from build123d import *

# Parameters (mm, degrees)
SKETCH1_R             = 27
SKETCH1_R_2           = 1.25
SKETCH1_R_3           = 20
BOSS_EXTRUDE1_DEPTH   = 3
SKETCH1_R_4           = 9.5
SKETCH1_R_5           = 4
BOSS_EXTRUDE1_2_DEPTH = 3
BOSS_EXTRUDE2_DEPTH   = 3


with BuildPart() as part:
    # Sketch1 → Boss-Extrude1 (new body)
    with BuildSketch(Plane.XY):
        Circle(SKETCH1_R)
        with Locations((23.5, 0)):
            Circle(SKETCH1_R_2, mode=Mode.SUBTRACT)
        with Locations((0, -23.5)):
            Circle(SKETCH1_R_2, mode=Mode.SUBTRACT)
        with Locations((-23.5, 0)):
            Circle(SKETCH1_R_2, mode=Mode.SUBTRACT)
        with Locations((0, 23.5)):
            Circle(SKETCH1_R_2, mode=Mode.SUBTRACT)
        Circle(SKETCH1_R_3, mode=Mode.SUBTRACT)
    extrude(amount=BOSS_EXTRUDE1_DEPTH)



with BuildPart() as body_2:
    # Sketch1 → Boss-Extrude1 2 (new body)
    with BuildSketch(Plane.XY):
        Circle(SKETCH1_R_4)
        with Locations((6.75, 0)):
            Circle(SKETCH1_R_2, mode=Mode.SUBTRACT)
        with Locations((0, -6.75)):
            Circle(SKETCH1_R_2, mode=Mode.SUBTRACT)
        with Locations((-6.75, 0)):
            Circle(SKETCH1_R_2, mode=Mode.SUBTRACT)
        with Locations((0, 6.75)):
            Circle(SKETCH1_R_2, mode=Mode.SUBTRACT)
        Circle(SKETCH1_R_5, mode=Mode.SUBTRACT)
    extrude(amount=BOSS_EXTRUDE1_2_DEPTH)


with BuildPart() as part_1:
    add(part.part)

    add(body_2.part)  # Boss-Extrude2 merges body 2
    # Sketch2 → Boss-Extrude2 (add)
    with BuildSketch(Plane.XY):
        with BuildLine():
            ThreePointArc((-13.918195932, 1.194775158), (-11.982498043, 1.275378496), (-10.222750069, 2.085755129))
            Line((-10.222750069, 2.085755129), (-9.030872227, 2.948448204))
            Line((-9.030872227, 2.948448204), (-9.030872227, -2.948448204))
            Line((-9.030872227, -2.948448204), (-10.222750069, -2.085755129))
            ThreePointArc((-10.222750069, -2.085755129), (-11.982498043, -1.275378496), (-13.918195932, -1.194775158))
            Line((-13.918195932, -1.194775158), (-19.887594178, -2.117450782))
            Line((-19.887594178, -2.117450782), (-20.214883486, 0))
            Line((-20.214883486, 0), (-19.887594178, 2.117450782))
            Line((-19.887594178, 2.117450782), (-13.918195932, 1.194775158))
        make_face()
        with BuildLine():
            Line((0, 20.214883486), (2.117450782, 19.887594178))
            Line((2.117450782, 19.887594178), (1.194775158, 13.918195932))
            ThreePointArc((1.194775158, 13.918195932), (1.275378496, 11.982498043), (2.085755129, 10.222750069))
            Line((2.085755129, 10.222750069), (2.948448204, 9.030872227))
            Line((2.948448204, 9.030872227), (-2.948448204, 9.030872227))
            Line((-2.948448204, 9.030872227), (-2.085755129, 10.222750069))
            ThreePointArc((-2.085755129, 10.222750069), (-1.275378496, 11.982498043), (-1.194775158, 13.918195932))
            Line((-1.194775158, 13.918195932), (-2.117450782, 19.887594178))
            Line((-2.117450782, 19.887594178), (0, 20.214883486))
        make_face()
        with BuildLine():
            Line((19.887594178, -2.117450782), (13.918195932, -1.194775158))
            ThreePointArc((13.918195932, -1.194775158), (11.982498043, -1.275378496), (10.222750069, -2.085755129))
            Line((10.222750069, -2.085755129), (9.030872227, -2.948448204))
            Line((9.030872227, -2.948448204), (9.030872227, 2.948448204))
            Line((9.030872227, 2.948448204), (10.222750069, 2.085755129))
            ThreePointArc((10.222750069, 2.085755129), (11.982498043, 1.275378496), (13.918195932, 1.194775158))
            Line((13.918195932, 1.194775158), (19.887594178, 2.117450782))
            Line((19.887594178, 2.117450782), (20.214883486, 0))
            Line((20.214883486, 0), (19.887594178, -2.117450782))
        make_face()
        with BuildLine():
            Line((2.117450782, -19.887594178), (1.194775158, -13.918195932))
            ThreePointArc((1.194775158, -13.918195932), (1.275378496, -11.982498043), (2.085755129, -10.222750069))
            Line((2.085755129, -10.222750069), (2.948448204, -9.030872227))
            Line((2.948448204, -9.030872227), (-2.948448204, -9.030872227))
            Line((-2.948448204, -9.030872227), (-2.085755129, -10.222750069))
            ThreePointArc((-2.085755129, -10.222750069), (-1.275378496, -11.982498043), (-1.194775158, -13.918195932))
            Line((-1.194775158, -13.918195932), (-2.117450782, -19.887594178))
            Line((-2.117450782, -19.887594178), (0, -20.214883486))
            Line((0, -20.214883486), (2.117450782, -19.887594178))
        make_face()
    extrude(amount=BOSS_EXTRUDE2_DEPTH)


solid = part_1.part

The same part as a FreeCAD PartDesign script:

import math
import FreeCAD as App
import Part
import Sketcher

V = App.Vector
Q = App.Units.Quantity

doc = App.newDocument("Part")
params = doc.addObject("Spreadsheet::Sheet", "Params")
for row, (alias, value) in enumerate([
    ("sketch1_diameter", "54 mm"),
    ("sketch1_diameter2", "40 mm"),
    ("sketch1_diameter3", "2.5 mm"),
    ("pad1_length", "3 mm"),
    ("sketch2_diameter", "19 mm"),
    ("sketch2_diameter2", "8 mm"),
    ("sketch2_diameter3", "2.5 mm"),
    ("pad2_length", "3 mm"),
    ("sketch3_radius", "5 mm"),
    ("pad3_length", "3 mm"),
], start=1):
    params.set(f"A{row}", alias)
    params.set(f"B{row}", "=" + value)
    params.setAlias(f"B{row}", alias)

body = doc.addObject("PartDesign::Body", "Body")

sketch1 = body.newObject("Sketcher::SketchObject", "Sketch")
sketch1.AttachmentSupport = (doc.getObject("XY_Plane"), [""])
sketch1.MapMode = "FlatFace"
sketch1.addGeometry(Part.Circle(V(0, 0, 0), V(0, 0, 1), 27), False)
sketch1.addGeometry(Part.Circle(V(0, -23.5, 0), V(0, 0, 1), 1.2), False)
sketch1.addGeometry(Part.Circle(V(-23.5, 0, 0), V(0, 0, 1), 1.2), False)
sketch1.addGeometry(Part.Circle(V(0, 0, 0), V(0, 0, 1), 20), False)
sketch1.addGeometry(Part.Circle(V(23.5, 0, 0), V(0, 0, 1), 1.2), False)
sketch1.addGeometry(Part.Circle(V(0, 23.5, 0), V(0, 0, 1), 1.2), False)
sketch1.addConstraint(Sketcher.Constraint("Coincident", 0, 3, -1, 1))
sketch1.addConstraint(Sketcher.Constraint("Coincident", 3, 3, -1, 1))
sketch1.addConstraint(Sketcher.Constraint("Equal", 1, 2))
sketch1.addConstraint(Sketcher.Constraint("Equal", 2, 4))
sketch1.addConstraint(Sketcher.Constraint("Equal", 4, 5))
sketch1.addConstraint(Sketcher.Constraint("Symmetric", 2, 3, 4, 3, -1, 1))
sketch1.addConstraint(Sketcher.Constraint("Symmetric", 1, 3, 5, 3, -1, 1))
sketch1.addConstraint(Sketcher.Constraint("PointOnObject", 1, 3, -2))
sketch1.addConstraint(Sketcher.Constraint("PointOnObject", 2, 3, -1))
sketch1.addConstraint(Sketcher.Constraint("Diameter", 0, Q("54 mm")))
sketch1.addConstraint(Sketcher.Constraint("Diameter", 3, Q("40 mm")))
sketch1.addConstraint(Sketcher.Constraint("Diameter", 1, Q("2.5 mm")))
sketch1.addConstraint(Sketcher.Constraint("DistanceX", 2, 3, 4, 3, Q("47 mm")))
sketch1.addConstraint(Sketcher.Constraint("DistanceY", 1, 3, 5, 3, Q("47 mm")))
sketch1.setExpression("Constraints[9]", "Params.sketch1_diameter")
sketch1.setExpression("Constraints[10]", "Params.sketch1_diameter2")
sketch1.setExpression("Constraints[11]", "Params.sketch1_diameter3")
pad1 = body.newObject("PartDesign::Pad", "Pad")
pad1.Profile = sketch1
pad1.setExpression("Length", "Params.pad1_length")
body2 = doc.addObject("PartDesign::Body", "Body001")

sketch2 = body2.newObject("Sketcher::SketchObject", "Sketch001")
sketch2.AttachmentSupport = (doc.getObject("XY_Plane001"), [""])
sketch2.MapMode = "FlatFace"
sketch2.addGeometry(Part.Circle(V(0, 0, 0), V(0, 0, 1), 9.5), False)
sketch2.addGeometry(Part.Circle(V(0, -6.8, 0), V(0, 0, 1), 1.2), False)
sketch2.addGeometry(Part.Circle(V(-6.8, 0, 0), V(0, 0, 1), 1.2), False)
sketch2.addGeometry(Part.Circle(V(0, 0, 0), V(0, 0, 1), 4), False)
sketch2.addGeometry(Part.Circle(V(6.8, 0, 0), V(0, 0, 1), 1.2), False)
sketch2.addGeometry(Part.Circle(V(0, 6.8, 0), V(0, 0, 1), 1.2), False)
sketch2.addConstraint(Sketcher.Constraint("Coincident", 0, 3, -1, 1))
sketch2.addConstraint(Sketcher.Constraint("Coincident", 3, 3, -1, 1))
sketch2.addConstraint(Sketcher.Constraint("Equal", 1, 2))
sketch2.addConstraint(Sketcher.Constraint("Equal", 2, 4))
sketch2.addConstraint(Sketcher.Constraint("Equal", 4, 5))
sketch2.addConstraint(Sketcher.Constraint("Symmetric", 2, 3, 4, 3, -1, 1))
sketch2.addConstraint(Sketcher.Constraint("Symmetric", 1, 3, 5, 3, -1, 1))
sketch2.addConstraint(Sketcher.Constraint("PointOnObject", 1, 3, -2))
sketch2.addConstraint(Sketcher.Constraint("PointOnObject", 2, 3, -1))
sketch2.addConstraint(Sketcher.Constraint("Diameter", 0, Q("19 mm")))
sketch2.addConstraint(Sketcher.Constraint("Diameter", 3, Q("8 mm")))
sketch2.addConstraint(Sketcher.Constraint("Diameter", 1, Q("2.5 mm")))
sketch2.addConstraint(Sketcher.Constraint("DistanceX", 2, 3, 4, 3, Q("13.5 mm")))
sketch2.addConstraint(Sketcher.Constraint("DistanceY", 1, 3, 5, 3, Q("13.5 mm")))
sketch2.setExpression("Constraints[9]", "Params.sketch2_diameter")
sketch2.setExpression("Constraints[10]", "Params.sketch2_diameter2")
sketch2.setExpression("Constraints[11]", "Params.sketch2_diameter3")
pad2 = body2.newObject("PartDesign::Pad", "Pad001")
pad2.Profile = sketch2
pad2.setExpression("Length", "Params.pad2_length")
body.AllowCompound = True
doc.recompute()

boolean = body.newObject("PartDesign::Boolean", "Boolean")
boolean.Type = "Fuse"
boolean.addObjects([body2])

sketch3 = body.newObject("Sketcher::SketchObject", "Sketch002")
sketch3.AttachmentSupport = (doc.getObject("XY_Plane"), [""])
sketch3.MapMode = "FlatFace"
sketch3.addGeometry(Part.ArcOfCircle(Part.Circle(V(-13.2, 6.1, 0), V(0, 0, 1), 5), math.radians(-99), math.radians(-54)), False)
sketch3.addGeometry(Part.LineSegment(V(-13.9, 1.2, 0), V(-19.9, 2.1, 0)), False)
sketch3.addGeometry(Part.LineSegment(V(-19.9, 2.1, 0), V(-20.2, 0, 0)), False)
sketch3.addGeometry(Part.LineSegment(V(-20.2, 0, 0), V(-19.9, -2.1, 0)), False)
sketch3.addGeometry(Part.LineSegment(V(-19.9, -2.1, 0), V(-13.9, -1.2, 0)), False)
sketch3.addGeometry(Part.ArcOfCircle(Part.Circle(V(-13.2, -6.1, 0), V(0, 0, 1), 5), math.radians(54), math.radians(99)), False)
sketch3.addGeometry(Part.LineSegment(V(-10.2, -2.1, 0), V(-9, -2.9, 0)), False)
sketch3.addGeometry(Part.LineSegment(V(-9, -2.9, 0), V(-9, 2.9, 0)), False)
sketch3.addGeometry(Part.LineSegment(V(-9, 2.9, 0), V(-10.2, 2.1, 0)), False)
sketch3.addGeometry(Part.LineSegment(V(2.1, 19.9, 0), V(0, 20.2, 0)), False)
sketch3.addGeometry(Part.LineSegment(V(0, 20.2, 0), V(-2.1, 19.9, 0)), False)
sketch3.addGeometry(Part.LineSegment(V(-2.1, 19.9, 0), V(-1.2, 13.9, 0)), False)
sketch3.addGeometry(Part.ArcOfCircle(Part.Circle(V(-6.1, 13.2, 0), V(0, 0, 1), 5), math.radians(-36), math.radians(9)), False)
sketch3.addGeometry(Part.LineSegment(V(-2.1, 10.2, 0), V(-2.9, 9, 0)), False)
sketch3.addGeometry(Part.LineSegment(V(-2.9, 9, 0), V(2.9, 9, 0)), False)
sketch3.addGeometry(Part.LineSegment(V(2.9, 9, 0), V(2.1, 10.2, 0)), False)
sketch3.addGeometry(Part.ArcOfCircle(Part.Circle(V(6.1, 13.2, 0), V(0, 0, 1), 5), math.radians(171), math.radians(216)), False)
sketch3.addGeometry(Part.LineSegment(V(1.2, 13.9, 0), V(2.1, 19.9, 0)), False)
sketch3.addGeometry(Part.LineSegment(V(13.9, -1.2, 0), V(19.9, -2.1, 0)), False)
sketch3.addGeometry(Part.LineSegment(V(19.9, -2.1, 0), V(20.2, 0, 0)), False)
sketch3.addGeometry(Part.LineSegment(V(20.2, 0, 0), V(19.9, 2.1, 0)), False)
sketch3.addGeometry(Part.LineSegment(V(19.9, 2.1, 0), V(13.9, 1.2, 0)), False)
sketch3.addGeometry(Part.ArcOfCircle(Part.Circle(V(13.2, 6.1, 0), V(0, 0, 1), 5), math.radians(-126), math.radians(-81)), False)
sketch3.addGeometry(Part.LineSegment(V(10.2, 2.1, 0), V(9, 2.9, 0)), False)
sketch3.addGeometry(Part.LineSegment(V(9, 2.9, 0), V(9, -2.9, 0)), False)
sketch3.addGeometry(Part.LineSegment(V(9, -2.9, 0), V(10.2, -2.1, 0)), False)
sketch3.addGeometry(Part.ArcOfCircle(Part.Circle(V(13.2, -6.1, 0), V(0, 0, 1), 5), math.radians(81), math.radians(126)), False)
sketch3.addGeometry(Part.LineSegment(V(2.1, -19.9, 0), V(1.2, -13.9, 0)), False)
sketch3.addGeometry(Part.ArcOfCircle(Part.Circle(V(6.1, -13.2, 0), V(0, 0, 1), 5), math.radians(144), math.radians(189)), False)
sketch3.addGeometry(Part.LineSegment(V(2.1, -10.2, 0), V(2.9, -9, 0)), False)
sketch3.addGeometry(Part.LineSegment(V(2.9, -9, 0), V(-2.9, -9, 0)), False)
sketch3.addGeometry(Part.LineSegment(V(-2.9, -9, 0), V(-2.1, -10.2, 0)), False)
sketch3.addGeometry(Part.ArcOfCircle(Part.Circle(V(-6.1, -13.2, 0), V(0, 0, 1), 5), math.radians(-9), math.radians(36)), False)
sketch3.addGeometry(Part.LineSegment(V(-1.2, -13.9, 0), V(-2.1, -19.9, 0)), False)
sketch3.addGeometry(Part.LineSegment(V(-2.1, -19.9, 0), V(0, -20.2, 0)), False)
sketch3.addGeometry(Part.LineSegment(V(0, -20.2, 0), V(2.1, -19.9, 0)), False)
sketch3.addConstraint(Sketcher.Constraint("Tangent", 0, 1, 1, 1))
sketch3.addConstraint(Sketcher.Constraint("Coincident", 1, 2, 2, 1))
sketch3.addConstraint(Sketcher.Constraint("Coincident", 2, 2, 3, 1))
sketch3.addConstraint(Sketcher.Constraint("Coincident", 3, 2, 4, 1))
sketch3.addConstraint(Sketcher.Constraint("Tangent", 4, 2, 5, 2))
sketch3.addConstraint(Sketcher.Constraint("Tangent", 5, 1, 6, 1))
sketch3.addConstraint(Sketcher.Constraint("Coincident", 6, 2, 7, 1))
sketch3.addConstraint(Sketcher.Constraint("Coincident", 7, 2, 8, 1))
sketch3.addConstraint(Sketcher.Constraint("Tangent", 8, 2, 0, 2))
sketch3.addConstraint(Sketcher.Constraint("Coincident", 9, 2, 10, 1))
sketch3.addConstraint(Sketcher.Constraint("Coincident", 10, 2, 11, 1))
sketch3.addConstraint(Sketcher.Constraint("Tangent", 11, 2, 12, 2))
sketch3.addConstraint(Sketcher.Constraint("Tangent", 12, 1, 13, 1))
sketch3.addConstraint(Sketcher.Constraint("Coincident", 13, 2, 14, 1))
sketch3.addConstraint(Sketcher.Constraint("Coincident", 14, 2, 15, 1))
sketch3.addConstraint(Sketcher.Constraint("Tangent", 15, 2, 16, 2))
sketch3.addConstraint(Sketcher.Constraint("Tangent", 16, 1, 17, 1))
sketch3.addConstraint(Sketcher.Constraint("Coincident", 17, 2, 9, 1))
sketch3.addConstraint(Sketcher.Constraint("Coincident", 18, 2, 19, 1))
sketch3.addConstraint(Sketcher.Constraint("Coincident", 19, 2, 20, 1))
sketch3.addConstraint(Sketcher.Constraint("Coincident", 20, 2, 21, 1))
sketch3.addConstraint(Sketcher.Constraint("Tangent", 21, 2, 22, 2))
sketch3.addConstraint(Sketcher.Constraint("Tangent", 22, 1, 23, 1))
sketch3.addConstraint(Sketcher.Constraint("Coincident", 23, 2, 24, 1))
sketch3.addConstraint(Sketcher.Constraint("Coincident", 24, 2, 25, 1))
sketch3.addConstraint(Sketcher.Constraint("Tangent", 25, 2, 26, 2))
sketch3.addConstraint(Sketcher.Constraint("Tangent", 26, 1, 18, 1))
sketch3.addConstraint(Sketcher.Constraint("Tangent", 27, 2, 28, 2))
sketch3.addConstraint(Sketcher.Constraint("Tangent", 28, 1, 29, 1))
sketch3.addConstraint(Sketcher.Constraint("Coincident", 29, 2, 30, 1))
sketch3.addConstraint(Sketcher.Constraint("Coincident", 30, 2, 31, 1))
sketch3.addConstraint(Sketcher.Constraint("Tangent", 31, 2, 32, 2))
sketch3.addConstraint(Sketcher.Constraint("Tangent", 32, 1, 33, 1))
sketch3.addConstraint(Sketcher.Constraint("Coincident", 33, 2, 34, 1))
sketch3.addConstraint(Sketcher.Constraint("Coincident", 34, 2, 35, 1))
sketch3.addConstraint(Sketcher.Constraint("Coincident", 35, 2, 27, 1))
sketch3.addConstraint(Sketcher.Constraint("Vertical", 7))
sketch3.addConstraint(Sketcher.Constraint("Horizontal", 14))
sketch3.addConstraint(Sketcher.Constraint("Vertical", 24))
sketch3.addConstraint(Sketcher.Constraint("Horizontal", 30))
sketch3.addConstraint(Sketcher.Constraint("Equal", 0, 5))
sketch3.addConstraint(Sketcher.Constraint("Equal", 5, 12))
sketch3.addConstraint(Sketcher.Constraint("Equal", 12, 16))
sketch3.addConstraint(Sketcher.Constraint("Equal", 16, 22))
sketch3.addConstraint(Sketcher.Constraint("Equal", 22, 26))
sketch3.addConstraint(Sketcher.Constraint("Equal", 26, 28))
sketch3.addConstraint(Sketcher.Constraint("Equal", 28, 32))
sketch3.addConstraint(Sketcher.Constraint("Symmetric", 5, 3, 22, 3, -1, 1))
sketch3.addConstraint(Sketcher.Constraint("Symmetric", 0, 3, 26, 3, -1, 1))
sketch3.addConstraint(Sketcher.Constraint("Symmetric", 12, 3, 28, 3, -1, 1))
sketch3.addConstraint(Sketcher.Constraint("Symmetric", 16, 3, 32, 3, -1, 1))
sketch3.addConstraint(Sketcher.Constraint("Symmetric", 1, 2, 18, 2, -1, 1))
sketch3.addConstraint(Sketcher.Constraint("Symmetric", 2, 2, 19, 2, -1, 1))
sketch3.addConstraint(Sketcher.Constraint("Symmetric", 3, 2, 20, 2, -1, 1))
sketch3.addConstraint(Sketcher.Constraint("Symmetric", 6, 2, 23, 2, -1, 1))
sketch3.addConstraint(Sketcher.Constraint("Symmetric", 13, 2, 29, 2, -1, 1))
sketch3.addConstraint(Sketcher.Constraint("Symmetric", 17, 2, 33, 2, -1, 1))
sketch3.addConstraint(Sketcher.Constraint("Symmetric", 9, 2, 34, 2, -1, 1))
sketch3.addConstraint(Sketcher.Constraint("Symmetric", 10, 2, 35, 2, -1, 1))
sketch3.addConstraint(Sketcher.Constraint("Symmetric", 12, 3, 16, 3, -2))
sketch3.addConstraint(Sketcher.Constraint("Symmetric", 0, 3, 22, 3, -2))
sketch3.addConstraint(Sketcher.Constraint("Symmetric", 10, 2, 17, 2, -2))
sketch3.addConstraint(Sketcher.Constraint("Symmetric", 3, 2, 18, 2, -2))
sketch3.addConstraint(Sketcher.Constraint("PointOnObject", 2, 2, -1))
sketch3.addConstraint(Sketcher.Constraint("PointOnObject", 9, 2, -2))
sketch3.addConstraint(Sketcher.Constraint("Perpendicular", 1, 2))
sketch3.addConstraint(Sketcher.Constraint("Perpendicular", 2, 9))
sketch3.addConstraint(Sketcher.Constraint("Perpendicular", 10, 11))
sketch3.addConstraint(Sketcher.Constraint("Perpendicular", 6, 13))
sketch3.addConstraint(Sketcher.Constraint("Perpendicular", 8, 15))
sketch3.addConstraint(Sketcher.Constraint("Perpendicular", 15, 25))
sketch3.addConstraint(Sketcher.Constraint("Perpendicular", 25, 31))
sketch3.addConstraint(Sketcher.Constraint("Horizontal", 12, 1, 15, 2))
sketch3.addConstraint(Sketcher.Constraint("Equal", 30, 7))
sketch3.addConstraint(Sketcher.Constraint("Equal", 3, 9))
sketch3.addConstraint(Sketcher.Constraint("Equal", 4, 11))
sketch3.addConstraint(Sketcher.Constraint("Radius", 0, Q("5 mm")))
sketch3.addConstraint(Sketcher.Constraint("DistanceX", 0, 1, 12, 3, Q("7.782099 mm")))
sketch3.addConstraint(Sketcher.Constraint("DistanceX", 1, 2, 0, 1, Q("5.969398 mm")))
sketch3.addConstraint(Sketcher.Constraint("DistanceY", 3, 2, 1, 2, Q("4.234902 mm")))
sketch3.addConstraint(Sketcher.Constraint("DistanceY", 7, 2, 12, 1, Q("7.274302 mm")))
sketch3.addConstraint(Sketcher.Constraint("DistanceX", 14, 2, 22, 1, Q("7.274302 mm")))
sketch3.addConstraint(Sketcher.Constraint("Distance", 6, Q("1.47133 mm")))
sketch3.addConstraint(Sketcher.Constraint("DistanceX", 14, 1, 14, 2, Q("5.896896 mm")))
sketch3.setExpression("Constraints[76]", "Params.sketch3_radius")
pad3 = body.newObject("PartDesign::Pad", "Pad002")
pad3.Profile = sketch3
pad3.setExpression("Length", "Params.pad3_length")

doc.recompute()
